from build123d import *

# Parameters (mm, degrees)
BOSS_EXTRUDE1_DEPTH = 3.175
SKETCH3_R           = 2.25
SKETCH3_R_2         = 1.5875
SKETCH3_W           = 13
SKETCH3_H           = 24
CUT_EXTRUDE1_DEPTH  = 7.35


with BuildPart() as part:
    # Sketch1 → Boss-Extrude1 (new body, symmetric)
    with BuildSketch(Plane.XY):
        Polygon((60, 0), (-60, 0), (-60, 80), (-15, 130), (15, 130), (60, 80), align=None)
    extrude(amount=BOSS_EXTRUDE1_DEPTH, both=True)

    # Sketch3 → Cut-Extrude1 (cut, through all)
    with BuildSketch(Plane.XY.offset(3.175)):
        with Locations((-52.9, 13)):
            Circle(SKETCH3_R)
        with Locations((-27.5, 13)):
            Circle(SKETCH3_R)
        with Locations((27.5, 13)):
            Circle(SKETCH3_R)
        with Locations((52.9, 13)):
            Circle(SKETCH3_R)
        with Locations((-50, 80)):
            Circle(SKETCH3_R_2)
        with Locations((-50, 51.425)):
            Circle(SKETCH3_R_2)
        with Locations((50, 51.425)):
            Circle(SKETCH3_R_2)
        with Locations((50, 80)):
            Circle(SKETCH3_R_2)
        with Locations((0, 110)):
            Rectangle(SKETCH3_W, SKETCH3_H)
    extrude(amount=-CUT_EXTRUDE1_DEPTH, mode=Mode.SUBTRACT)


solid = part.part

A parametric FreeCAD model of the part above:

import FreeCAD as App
import Part
import Sketcher
Q = App.Units.Quantity


def add_polygon(sketch, points):
    """Adds a closed chain of lines whose ends are joined by coincident constraints."""
    first, n = sketch.GeometryCount, len(points)
    for a, b in zip(points, points[1:] + points[:1]):
        sketch.addGeometry(Part.LineSegment(App.Vector(*a, 0), App.Vector(*b, 0)), False)
    for i in range(n):
        sketch.addConstraint(Sketcher.Constraint("Coincident", first + i, 2, first + (i + 1) % n, 1))

doc = App.newDocument("Part")
params = doc.addObject("Spreadsheet::Sheet", "Params")
for row, (alias, value) in enumerate([
    ("sketch1_width", "120 mm"),
    ("sketch1_width2", "30 mm"),
    ("sketch1_height", "80 mm"),
    ("pad1_length", "6.35 mm"),
    ("sketch2_diameter", "4.5 mm"),
    ("sketch2_width", "13 mm"),
    ("sketch2_height", "24 mm"),
], start=1):
    params.set(f"A{row}", alias)
    params.set(f"B{row}", "=" + value)
    params.setAlias(f"B{row}", alias)

body = doc.addObject("PartDesign::Body", "Body")

# Sketch on XY plane
sketch1 = body.newObject("Sketcher::SketchObject", "Sketch")
sketch1.AttachmentSupport = (doc.getObject("XY_Plane"), [""])
sketch1.MapMode = "FlatFace"
add_polygon(sketch1, [(-60, 0), (60, 0), (60, 80), (15, 130), (-15, 130), (-60, 80)])  # lines 0-5
sketch1.addConstraint(Sketcher.Constraint("Horizontal", 0))
sketch1.addConstraint(Sketcher.Constraint("Vertical", 1))
sketch1.addConstraint(Sketcher.Constraint("Horizontal", 3))
sketch1.addConstraint(Sketcher.Constraint("Vertical", 5))
sketch1.addConstraint(Sketcher.Constraint("Symmetric", 0, 2, 5, 2, -1, 1))
sketch1.addConstraint(Sketcher.Constraint("Horizontal", 1, 2, 4, 2))
sketch1.addConstraint(Sketcher.Constraint("Equal", 2, 4))
sketch1.addConstraint(Sketcher.Constraint("DistanceX", 0, 1, 0, 2, Q("120 mm")))
sketch1.addConstraint(Sketcher.Constraint("DistanceX", 3, 2, 3, 1, Q("30 mm")))
sketch1.addConstraint(Sketcher.Constraint("DistanceY", 1, 1, 1, 2, Q("80 mm")))
sketch1.addConstraint(Sketcher.Constraint("DistanceY", -1, 1, 2, 2, Q("130 mm")))
sketch1.setExpression("Constraints[13]", "Params.sketch1_width")
sketch1.setExpression("Constraints[14]", "Params.sketch1_width2")
sketch1.setExpression("Constraints[15]", "Params.sketch1_height")
pad1 = body.newObject("PartDesign::Pad", "Pad")
pad1.Profile = sketch1
pad1.setExpression("Length", "Params.pad1_length")
pad1.Midplane = True

# Sketch on XY plane
sketch2 = body.newObject("Sketcher::SketchObject", "Sketch001")
sketch2.AttachmentSupport = (doc.getObject("XY_Plane"), [""])
sketch2.MapMode = "FlatFace"
sketch2.AttachmentOffset = App.Placement(App.Vector(0, 0, 3.175), App.Rotation())
sketch2.addGeometry(Part.Circle(App.Vector(-52.9, 13, 0), App.Vector(0, 0, 1), 2.2), False)  # 0
sketch2.addGeometry(Part.Circle(App.Vector(-27.5, 13, 0), App.Vector(0, 0, 1), 2.2), False)  # 1
sketch2.addGeometry(Part.Circle(App.Vector(27.5, 13, 0), App.Vector(0, 0, 1), 2.2), False)  # 2
sketch2.addGeometry(Part.Circle(App.Vector(52.9, 13, 0), App.Vector(0, 0, 1), 2.2), False)  # 3
sketch2.addGeometry(Part.Circle(App.Vector(-50, 80, 0), App.Vector(0, 0, 1), 1.6), False)  # 4
sketch2.addGeometry(Part.Circle(App.Vector(-50, 51.4, 0), App.Vector(0, 0, 1), 1.6), False)  # 5
sketch2.addGeometry(Part.Circle(App.Vector(50, 51.4, 0), App.Vector(0, 0, 1), 1.6), False)  # 6
sketch2.addGeometry(Part.Circle(App.Vector(50, 80, 0), App.Vector(0, 0, 1), 1.6), False)  # 7
add_polygon(sketch2, [(-6.5, 122), (-6.5, 98), (6.5, 98), (6.5, 122)])  # lines 8-11
sketch2.addConstraint(Sketcher.Constraint("Vertical", 8))
sketch2.addConstraint(Sketcher.Constraint("Horizontal", 9))
sketch2.addConstraint(Sketcher.Constraint("Vertical", 10))
sketch2.addConstraint(Sketcher.Constraint("Horizontal", 11))
sketch2.addConstraint(Sketcher.Constraint("Equal", 0, 1))
sketch2.addConstraint(Sketcher.Constraint("Equal", 1, 2))
sketch2.addConstraint(Sketcher.Constraint("Equal", 2, 3))
sketch2.addConstraint(Sketcher.Constraint("Equal", 4, 5))
sketch2.addConstraint(Sketcher.Constraint("Equal", 5, 6))
sketch2.addConstraint(Sketcher.Constraint("Equal", 6, 7))
sketch2.addConstraint(Sketcher.Constraint("Symmetric", 1, 3, 2, 3, -2))
sketch2.addConstraint(Sketcher.Constraint("Symmetric", 0, 3, 3, 3, -2))
sketch2.addConstraint(Sketcher.Constraint("Symmetric", 5, 3, 6, 3, -2))
sketch2.addConstraint(Sketcher.Constraint("Symmetric", 4, 3, 7, 3, -2))
sketch2.addConstraint(Sketcher.Constraint("Horizontal", 0, 3, 1, 3))
sketch2.addConstraint(Sketcher.Constraint("Vertical", 4, 3, 5, 3))
sketch2.addConstraint(Sketcher.Constraint("Diameter", 0, Q("4.5 mm")))
sketch2.addConstraint(Sketcher.Constraint("DistanceX", 9, 1, 9, 2, Q("13 mm")))
sketch2.addConstraint(Sketcher.Constraint("DistanceY", 8, 2, 8, 1, Q("24 mm")))
sketch2.addConstraint(Sketcher.Constraint("Diameter", 4, Q("3.175 mm")))
sketch2.addConstraint(Sketcher.Constraint("DistanceY", -1, 1, 0, 3, Q("13 mm")))
sketch2.addConstraint(Sketcher.Constraint("DistanceX", 4, 3, -1, 1, Q("50 mm")))
sketch2.addConstraint(Sketcher.Constraint("DistanceY", -1, 1, 4, 3, Q("80 mm")))
sketch2.addConstraint(Sketcher.Constraint("DistanceY", -1, 1, 8, 2, Q("98 mm")))
sketch2.addConstraint(Sketcher.Constraint("DistanceX", 1, 3, 2, 3, Q("55 mm")))
sketch2.addConstraint(Sketcher.Constraint("DistanceX", 1, 3, 8, 2, Q("21 mm")))
sketch2.addConstraint(Sketcher.Constraint("DistanceX", 0, 3, -1, 1, Q("52.9 mm")))
sketch2.addConstraint(Sketcher.Constraint("DistanceY", -1, 1, 5, 3, Q("51.425 mm")))
sketch2.setExpression("Constraints[20]", "Params.sketch2_diameter")
sketch2.setExpression("Constraints[21]", "Params.sketch2_width")
sketch2.setExpression("Constraints[22]", "Params.sketch2_height")
pocket1 = body.newObject("PartDesign::Pocket", "Pocket")
pocket1.Profile = sketch2
pocket1.Type = "ThroughAll"

doc.recompute()
